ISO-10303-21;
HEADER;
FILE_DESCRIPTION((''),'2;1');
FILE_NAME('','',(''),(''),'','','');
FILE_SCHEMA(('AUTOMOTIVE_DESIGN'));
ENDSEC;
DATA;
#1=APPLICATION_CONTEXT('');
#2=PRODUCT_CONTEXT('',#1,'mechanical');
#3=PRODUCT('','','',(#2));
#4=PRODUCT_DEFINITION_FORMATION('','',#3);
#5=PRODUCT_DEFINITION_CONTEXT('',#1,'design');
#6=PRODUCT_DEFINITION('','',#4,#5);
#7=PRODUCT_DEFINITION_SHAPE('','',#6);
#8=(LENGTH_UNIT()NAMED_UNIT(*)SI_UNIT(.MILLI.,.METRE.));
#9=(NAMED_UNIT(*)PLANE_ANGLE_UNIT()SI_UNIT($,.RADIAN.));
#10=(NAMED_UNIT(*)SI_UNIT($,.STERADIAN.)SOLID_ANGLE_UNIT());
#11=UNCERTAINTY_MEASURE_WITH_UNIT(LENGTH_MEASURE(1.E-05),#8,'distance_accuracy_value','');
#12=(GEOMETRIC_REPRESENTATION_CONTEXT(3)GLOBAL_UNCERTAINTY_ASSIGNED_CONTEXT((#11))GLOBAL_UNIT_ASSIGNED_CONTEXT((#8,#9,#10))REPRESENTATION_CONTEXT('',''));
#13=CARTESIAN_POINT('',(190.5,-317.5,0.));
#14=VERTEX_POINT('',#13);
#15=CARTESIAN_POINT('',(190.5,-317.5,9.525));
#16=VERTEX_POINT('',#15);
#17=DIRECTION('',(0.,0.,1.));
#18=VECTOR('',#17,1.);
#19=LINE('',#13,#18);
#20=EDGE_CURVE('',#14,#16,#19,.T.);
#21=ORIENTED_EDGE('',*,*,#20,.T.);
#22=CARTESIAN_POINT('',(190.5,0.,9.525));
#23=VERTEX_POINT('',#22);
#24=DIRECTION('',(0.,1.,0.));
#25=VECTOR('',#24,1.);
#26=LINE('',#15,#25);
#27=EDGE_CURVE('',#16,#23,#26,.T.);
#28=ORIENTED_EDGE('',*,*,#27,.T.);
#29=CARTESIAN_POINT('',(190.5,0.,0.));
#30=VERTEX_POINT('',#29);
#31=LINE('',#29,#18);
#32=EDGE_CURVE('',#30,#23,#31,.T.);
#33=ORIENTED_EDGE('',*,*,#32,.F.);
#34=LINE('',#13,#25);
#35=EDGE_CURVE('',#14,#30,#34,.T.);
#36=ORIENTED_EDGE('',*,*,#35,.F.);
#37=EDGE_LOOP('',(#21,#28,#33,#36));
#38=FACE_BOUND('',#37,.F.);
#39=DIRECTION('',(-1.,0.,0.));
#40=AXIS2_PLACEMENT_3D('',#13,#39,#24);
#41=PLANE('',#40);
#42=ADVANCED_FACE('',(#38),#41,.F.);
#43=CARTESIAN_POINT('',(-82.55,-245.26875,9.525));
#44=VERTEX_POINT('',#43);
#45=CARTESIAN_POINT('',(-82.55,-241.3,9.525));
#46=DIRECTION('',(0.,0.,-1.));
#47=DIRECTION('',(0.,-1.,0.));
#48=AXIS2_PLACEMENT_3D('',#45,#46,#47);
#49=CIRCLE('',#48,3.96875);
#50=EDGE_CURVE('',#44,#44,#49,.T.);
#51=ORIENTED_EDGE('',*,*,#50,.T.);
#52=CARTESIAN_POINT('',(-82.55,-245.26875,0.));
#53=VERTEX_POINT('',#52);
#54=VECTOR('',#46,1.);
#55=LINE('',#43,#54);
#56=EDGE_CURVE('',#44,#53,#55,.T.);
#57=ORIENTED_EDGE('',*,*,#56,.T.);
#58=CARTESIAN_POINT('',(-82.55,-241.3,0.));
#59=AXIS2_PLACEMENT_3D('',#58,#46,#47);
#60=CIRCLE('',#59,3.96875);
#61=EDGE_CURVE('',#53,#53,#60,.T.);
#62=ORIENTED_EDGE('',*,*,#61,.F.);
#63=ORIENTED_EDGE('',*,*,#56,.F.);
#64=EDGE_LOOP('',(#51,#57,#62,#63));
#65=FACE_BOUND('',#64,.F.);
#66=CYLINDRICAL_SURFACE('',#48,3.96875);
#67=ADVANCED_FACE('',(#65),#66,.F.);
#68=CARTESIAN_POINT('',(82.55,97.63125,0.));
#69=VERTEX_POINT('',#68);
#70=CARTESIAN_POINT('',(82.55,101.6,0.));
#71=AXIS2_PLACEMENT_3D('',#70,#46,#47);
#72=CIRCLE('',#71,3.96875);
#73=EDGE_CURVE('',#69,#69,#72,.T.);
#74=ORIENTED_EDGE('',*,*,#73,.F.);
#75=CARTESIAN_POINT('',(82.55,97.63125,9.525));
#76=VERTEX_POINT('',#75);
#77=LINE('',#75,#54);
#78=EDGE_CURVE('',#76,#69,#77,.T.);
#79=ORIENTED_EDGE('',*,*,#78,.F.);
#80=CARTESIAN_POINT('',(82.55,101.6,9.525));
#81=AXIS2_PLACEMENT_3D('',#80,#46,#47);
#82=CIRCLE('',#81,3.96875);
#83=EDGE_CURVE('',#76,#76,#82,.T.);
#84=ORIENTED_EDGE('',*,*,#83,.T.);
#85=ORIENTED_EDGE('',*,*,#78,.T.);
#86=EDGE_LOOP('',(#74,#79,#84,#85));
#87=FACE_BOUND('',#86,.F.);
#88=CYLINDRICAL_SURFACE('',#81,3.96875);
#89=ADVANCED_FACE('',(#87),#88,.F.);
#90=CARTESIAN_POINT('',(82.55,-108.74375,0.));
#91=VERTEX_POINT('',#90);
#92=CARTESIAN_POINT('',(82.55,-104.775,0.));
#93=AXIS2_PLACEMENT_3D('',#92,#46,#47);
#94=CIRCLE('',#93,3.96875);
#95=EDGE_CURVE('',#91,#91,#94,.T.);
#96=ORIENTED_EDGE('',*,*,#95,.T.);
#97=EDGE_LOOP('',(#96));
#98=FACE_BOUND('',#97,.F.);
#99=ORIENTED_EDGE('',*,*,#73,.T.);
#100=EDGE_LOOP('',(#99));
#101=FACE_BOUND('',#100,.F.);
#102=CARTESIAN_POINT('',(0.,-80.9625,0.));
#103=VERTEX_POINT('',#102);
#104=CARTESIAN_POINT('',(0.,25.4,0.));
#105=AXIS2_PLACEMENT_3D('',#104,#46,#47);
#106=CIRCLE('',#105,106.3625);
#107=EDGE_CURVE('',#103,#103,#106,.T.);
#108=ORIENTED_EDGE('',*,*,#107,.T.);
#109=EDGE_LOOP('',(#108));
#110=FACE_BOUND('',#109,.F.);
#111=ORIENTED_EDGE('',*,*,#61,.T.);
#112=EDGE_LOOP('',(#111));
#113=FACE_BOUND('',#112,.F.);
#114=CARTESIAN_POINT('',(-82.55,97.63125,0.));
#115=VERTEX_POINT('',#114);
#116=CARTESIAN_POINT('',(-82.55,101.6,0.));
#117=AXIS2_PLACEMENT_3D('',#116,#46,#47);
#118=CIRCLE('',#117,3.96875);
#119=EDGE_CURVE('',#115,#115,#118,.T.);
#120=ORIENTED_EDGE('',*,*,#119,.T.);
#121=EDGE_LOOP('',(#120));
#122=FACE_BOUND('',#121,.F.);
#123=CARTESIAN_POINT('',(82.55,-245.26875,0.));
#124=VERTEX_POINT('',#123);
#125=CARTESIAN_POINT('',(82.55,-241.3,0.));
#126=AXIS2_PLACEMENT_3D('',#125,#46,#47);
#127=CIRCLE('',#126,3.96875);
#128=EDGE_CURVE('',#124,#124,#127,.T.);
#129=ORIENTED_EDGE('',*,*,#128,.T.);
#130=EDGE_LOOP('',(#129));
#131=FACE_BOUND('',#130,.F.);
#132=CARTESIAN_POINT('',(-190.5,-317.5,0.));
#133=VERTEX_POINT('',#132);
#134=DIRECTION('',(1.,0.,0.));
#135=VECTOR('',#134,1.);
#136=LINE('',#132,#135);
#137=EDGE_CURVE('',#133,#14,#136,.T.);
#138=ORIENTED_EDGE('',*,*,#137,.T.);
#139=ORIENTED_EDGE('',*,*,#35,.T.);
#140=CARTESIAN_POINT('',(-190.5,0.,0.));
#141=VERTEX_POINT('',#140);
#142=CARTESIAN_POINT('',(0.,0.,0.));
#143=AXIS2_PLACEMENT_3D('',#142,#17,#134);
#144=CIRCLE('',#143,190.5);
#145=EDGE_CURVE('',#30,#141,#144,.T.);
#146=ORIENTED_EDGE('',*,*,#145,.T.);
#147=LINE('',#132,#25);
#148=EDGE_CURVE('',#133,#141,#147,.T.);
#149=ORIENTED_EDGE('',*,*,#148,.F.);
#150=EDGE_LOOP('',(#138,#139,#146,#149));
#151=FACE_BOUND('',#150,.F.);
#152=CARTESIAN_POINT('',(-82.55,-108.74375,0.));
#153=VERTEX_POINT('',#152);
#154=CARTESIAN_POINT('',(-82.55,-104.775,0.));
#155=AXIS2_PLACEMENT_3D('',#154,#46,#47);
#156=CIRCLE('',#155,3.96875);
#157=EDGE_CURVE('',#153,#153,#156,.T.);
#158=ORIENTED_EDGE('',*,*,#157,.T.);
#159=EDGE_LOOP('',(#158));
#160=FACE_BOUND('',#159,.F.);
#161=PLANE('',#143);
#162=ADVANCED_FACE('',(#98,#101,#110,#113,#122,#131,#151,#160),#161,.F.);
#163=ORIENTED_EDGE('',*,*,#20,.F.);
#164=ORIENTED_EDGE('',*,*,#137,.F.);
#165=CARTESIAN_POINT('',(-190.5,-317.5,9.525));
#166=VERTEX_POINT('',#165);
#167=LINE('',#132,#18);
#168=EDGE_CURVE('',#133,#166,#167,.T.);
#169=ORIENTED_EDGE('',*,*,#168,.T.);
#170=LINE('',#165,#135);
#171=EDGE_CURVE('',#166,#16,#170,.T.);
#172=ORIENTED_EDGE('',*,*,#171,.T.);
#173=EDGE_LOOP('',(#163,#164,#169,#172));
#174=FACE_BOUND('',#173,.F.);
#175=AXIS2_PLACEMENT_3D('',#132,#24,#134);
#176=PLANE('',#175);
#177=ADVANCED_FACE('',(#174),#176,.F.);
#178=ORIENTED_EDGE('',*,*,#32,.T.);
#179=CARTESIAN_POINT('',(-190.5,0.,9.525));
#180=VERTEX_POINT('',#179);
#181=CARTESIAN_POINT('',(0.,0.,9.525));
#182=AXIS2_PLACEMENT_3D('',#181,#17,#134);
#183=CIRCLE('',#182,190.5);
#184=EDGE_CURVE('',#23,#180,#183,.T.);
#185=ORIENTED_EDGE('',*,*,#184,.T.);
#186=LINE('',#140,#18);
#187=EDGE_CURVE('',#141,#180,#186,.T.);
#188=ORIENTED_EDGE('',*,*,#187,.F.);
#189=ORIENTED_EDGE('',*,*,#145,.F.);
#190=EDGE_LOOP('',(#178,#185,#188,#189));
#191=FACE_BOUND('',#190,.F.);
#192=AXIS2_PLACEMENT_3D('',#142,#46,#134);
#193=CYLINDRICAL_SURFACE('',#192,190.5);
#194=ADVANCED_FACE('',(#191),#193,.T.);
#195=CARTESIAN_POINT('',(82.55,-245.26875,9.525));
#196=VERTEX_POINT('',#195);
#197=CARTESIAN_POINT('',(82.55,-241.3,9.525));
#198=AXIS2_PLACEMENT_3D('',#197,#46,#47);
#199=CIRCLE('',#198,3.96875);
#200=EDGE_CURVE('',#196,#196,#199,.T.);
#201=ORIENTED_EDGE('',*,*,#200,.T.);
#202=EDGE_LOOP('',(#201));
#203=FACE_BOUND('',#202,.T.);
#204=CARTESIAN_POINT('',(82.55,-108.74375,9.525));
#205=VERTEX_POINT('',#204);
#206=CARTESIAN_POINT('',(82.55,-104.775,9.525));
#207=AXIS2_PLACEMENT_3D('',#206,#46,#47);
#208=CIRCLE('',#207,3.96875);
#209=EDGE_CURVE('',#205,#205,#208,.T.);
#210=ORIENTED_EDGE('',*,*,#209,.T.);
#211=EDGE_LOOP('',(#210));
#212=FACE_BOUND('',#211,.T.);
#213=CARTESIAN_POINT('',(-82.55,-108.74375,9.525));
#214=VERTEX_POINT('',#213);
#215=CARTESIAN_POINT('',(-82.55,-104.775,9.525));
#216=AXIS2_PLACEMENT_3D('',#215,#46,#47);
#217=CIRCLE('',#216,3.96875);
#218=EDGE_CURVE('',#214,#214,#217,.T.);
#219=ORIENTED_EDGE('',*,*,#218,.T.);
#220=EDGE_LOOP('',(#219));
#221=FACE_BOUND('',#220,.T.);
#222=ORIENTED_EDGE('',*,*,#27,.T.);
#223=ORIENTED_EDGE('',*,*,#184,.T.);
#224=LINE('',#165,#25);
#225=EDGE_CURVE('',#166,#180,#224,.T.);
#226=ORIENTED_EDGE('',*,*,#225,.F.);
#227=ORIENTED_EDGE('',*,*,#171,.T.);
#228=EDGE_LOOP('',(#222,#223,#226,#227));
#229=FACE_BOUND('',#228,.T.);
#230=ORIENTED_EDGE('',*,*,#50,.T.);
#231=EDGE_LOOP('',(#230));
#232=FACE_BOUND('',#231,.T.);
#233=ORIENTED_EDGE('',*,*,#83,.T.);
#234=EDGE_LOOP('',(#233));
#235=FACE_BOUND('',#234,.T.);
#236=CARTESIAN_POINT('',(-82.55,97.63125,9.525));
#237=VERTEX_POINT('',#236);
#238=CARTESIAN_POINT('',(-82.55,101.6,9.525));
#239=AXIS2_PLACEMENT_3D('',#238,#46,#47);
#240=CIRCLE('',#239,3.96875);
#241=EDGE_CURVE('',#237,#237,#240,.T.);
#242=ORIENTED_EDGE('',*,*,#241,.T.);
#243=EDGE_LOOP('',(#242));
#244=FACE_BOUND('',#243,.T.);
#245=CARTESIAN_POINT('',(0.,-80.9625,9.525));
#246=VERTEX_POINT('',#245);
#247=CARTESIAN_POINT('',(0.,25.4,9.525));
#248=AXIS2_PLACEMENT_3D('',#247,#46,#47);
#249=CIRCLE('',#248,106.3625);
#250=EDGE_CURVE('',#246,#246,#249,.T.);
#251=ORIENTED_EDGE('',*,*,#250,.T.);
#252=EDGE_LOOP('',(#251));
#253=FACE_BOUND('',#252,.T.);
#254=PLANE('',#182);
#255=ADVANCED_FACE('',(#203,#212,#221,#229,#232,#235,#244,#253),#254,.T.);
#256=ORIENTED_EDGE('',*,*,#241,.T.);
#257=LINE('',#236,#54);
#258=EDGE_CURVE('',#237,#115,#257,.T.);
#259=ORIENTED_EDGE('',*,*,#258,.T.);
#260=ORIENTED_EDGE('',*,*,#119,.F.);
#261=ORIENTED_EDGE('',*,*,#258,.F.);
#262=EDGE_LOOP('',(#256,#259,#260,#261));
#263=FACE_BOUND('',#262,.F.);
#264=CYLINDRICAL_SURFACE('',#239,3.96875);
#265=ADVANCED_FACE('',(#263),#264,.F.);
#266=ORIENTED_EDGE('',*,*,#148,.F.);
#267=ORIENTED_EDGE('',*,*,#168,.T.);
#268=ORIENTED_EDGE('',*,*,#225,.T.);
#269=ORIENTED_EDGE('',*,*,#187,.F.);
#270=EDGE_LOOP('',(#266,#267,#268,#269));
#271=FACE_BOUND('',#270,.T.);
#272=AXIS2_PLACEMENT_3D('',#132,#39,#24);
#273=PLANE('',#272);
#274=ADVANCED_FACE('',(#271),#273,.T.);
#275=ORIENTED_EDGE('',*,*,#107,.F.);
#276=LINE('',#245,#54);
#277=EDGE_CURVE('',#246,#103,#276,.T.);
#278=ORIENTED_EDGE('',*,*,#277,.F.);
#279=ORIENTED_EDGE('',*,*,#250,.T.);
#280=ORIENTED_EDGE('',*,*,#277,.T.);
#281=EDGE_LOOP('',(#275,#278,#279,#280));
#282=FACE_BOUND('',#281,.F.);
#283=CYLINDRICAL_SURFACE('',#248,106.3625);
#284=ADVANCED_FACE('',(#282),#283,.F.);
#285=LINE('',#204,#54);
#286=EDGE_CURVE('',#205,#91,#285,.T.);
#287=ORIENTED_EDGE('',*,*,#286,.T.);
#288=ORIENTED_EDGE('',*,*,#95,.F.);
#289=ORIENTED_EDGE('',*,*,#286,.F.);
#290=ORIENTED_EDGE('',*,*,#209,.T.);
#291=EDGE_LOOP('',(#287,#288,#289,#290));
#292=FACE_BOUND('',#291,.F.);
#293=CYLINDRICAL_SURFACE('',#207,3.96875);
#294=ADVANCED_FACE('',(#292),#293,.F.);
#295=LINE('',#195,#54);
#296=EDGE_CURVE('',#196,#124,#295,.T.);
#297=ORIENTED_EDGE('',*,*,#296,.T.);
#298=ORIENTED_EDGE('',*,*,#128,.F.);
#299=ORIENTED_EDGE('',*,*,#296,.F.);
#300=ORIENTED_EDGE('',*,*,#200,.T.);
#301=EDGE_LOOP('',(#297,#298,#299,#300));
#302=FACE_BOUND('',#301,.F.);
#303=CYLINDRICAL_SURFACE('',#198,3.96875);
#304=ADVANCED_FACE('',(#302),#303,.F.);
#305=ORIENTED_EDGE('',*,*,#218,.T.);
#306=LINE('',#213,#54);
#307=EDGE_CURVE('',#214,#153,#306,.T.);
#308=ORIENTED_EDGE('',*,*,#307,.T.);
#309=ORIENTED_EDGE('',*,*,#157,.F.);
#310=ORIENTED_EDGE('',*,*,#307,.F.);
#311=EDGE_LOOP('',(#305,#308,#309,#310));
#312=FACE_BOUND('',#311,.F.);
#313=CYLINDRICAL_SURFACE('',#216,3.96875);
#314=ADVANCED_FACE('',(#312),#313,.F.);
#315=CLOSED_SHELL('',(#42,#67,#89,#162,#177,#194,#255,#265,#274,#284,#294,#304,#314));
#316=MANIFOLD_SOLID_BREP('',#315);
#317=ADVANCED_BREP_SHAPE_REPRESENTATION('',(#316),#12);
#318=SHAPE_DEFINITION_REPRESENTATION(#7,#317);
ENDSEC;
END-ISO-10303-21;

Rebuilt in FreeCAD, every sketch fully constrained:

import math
import FreeCAD as App
import Part
import Sketcher
Q = App.Units.Quantity

doc = App.newDocument("Part")
params = doc.addObject("Spreadsheet::Sheet", "Params")
for row, (alias, value) in enumerate([
    ("sketch1_radius", "7.5 in"),
    ("sketch1_height", "12.5 in"),
    ("pad1_length", "0.375 in"),
    ("sketch2_diameter", "0.3125 in"),
    ("hole_diameter", "0.3125 in"),
    ("hole_depth", "1 in"),
    ("sketch3_diameter", "0.3125 in"),
    ("hole2_diameter", "0.3125 in"),
    ("hole2_depth", "1 in"),
    ("sketch4_diameter", "0.3125 in"),
    ("hole3_diameter", "0.3125 in"),
    ("hole3_depth", "1 in"),
    ("sketch5_diameter", "0.3125 in"),
    ("hole4_diameter", "0.3125 in"),
    ("hole4_depth", "1 in"),
    ("sketch6_diameter", "0.3125 in"),
    ("hole5_diameter", "0.3125 in"),
    ("hole5_depth", "1 in"),
    ("sketch7_diameter", "0.3125 in"),
    ("hole6_diameter", "0.3125 in"),
    ("hole6_depth", "1 in"),
    ("sketch8_diameter", "8.375 in"),
    ("hole7_diameter", "8.375 in"),
    ("hole7_depth", "1 in"),
], start=1):
    params.set(f"A{row}", alias)
    params.set(f"B{row}", "=" + value)
    params.setAlias(f"B{row}", alias)

body = doc.addObject("PartDesign::Body", "Body")

sketch1 = body.newObject("Sketcher::SketchObject", "Sketch")
sketch1.AttachmentSupport = (doc.getObject("XY_Plane"), [""])
sketch1.MapMode = "FlatFace"
sketch1.addGeometry(Part.LineSegment(App.Vector(-190, 0, 0), App.Vector(-190, -318, 0)), False)
sketch1.addGeometry(Part.LineSegment(App.Vector(-190, -318, 0), App.Vector(190, -318, 0)), False)
sketch1.addGeometry(Part.LineSegment(App.Vector(190, -318, 0), App.Vector(190, 0, 0)), False)
sketch1.addGeometry(Part.ArcOfCircle(Part.Circle(App.Vector(0, 0, 0), App.Vector(0, 0, 1), 190), math.radians(0), math.radians(180)), False)
sketch1.addConstraint(Sketcher.Constraint("Coincident", 0, 2, 1, 1))
sketch1.addConstraint(Sketcher.Constraint("Coincident", 1, 2, 2, 1))
sketch1.addConstraint(Sketcher.Constraint("Tangent", 2, 2, 3, 1))
sketch1.addConstraint(Sketcher.Constraint("Tangent", 3, 2, 0, 1))
sketch1.addConstraint(Sketcher.Constraint("Vertical", 0))
sketch1.addConstraint(Sketcher.Constraint("Horizontal", 1))
sketch1.addConstraint(Sketcher.Constraint("Vertical", 2))
sketch1.addConstraint(Sketcher.Constraint("Coincident", 3, 3, -1, 1))
sketch1.addConstraint(Sketcher.Constraint("Radius", 3, Q("7.5 in")))
sketch1.addConstraint(Sketcher.Constraint("DistanceY", 0, 2, 0, 1, Q("12.5 in")))
sketch1.setExpression("Constraints[8]", "Params.sketch1_radius")
sketch1.setExpression("Constraints[9]", "Params.sketch1_height")
pad1 = body.newObject("PartDesign::Pad", "Pad")
pad1.Profile = sketch1
pad1.setExpression("Length", "Params.pad1_length")

sketch2 = body.newObject("Sketcher::SketchObject", "Sketch001")
sketch2.AttachmentSupport = (doc.getObject("XY_Plane"), [""])
sketch2.MapMode = "FlatFace"
sketch2.AttachmentOffset = App.Placement(App.Vector(0, 0, 0.375 * 25.4), App.Rotation())
sketch2.addGeometry(Part.Circle(App.Vector(82.5, -241.3, 0), App.Vector(0, 0, 1), 4), False)
sketch2.addConstraint(Sketcher.Constraint("Diameter", 0, Q("0.3125 in")))
sketch2.addConstraint(Sketcher.Constraint("DistanceY", 0, 3, -1, 1, Q("9.5 in")))
sketch2.addConstraint(Sketcher.Constraint("DistanceX", -1, 1, 0, 3, Q("3.25 in")))
sketch2.setExpression("Constraints[0]", "Params.sketch2_diameter")
doc.recompute()
hole = body.newObject("PartDesign::Hole", "Hole")
hole.Profile = sketch2
hole.ThreadType = "None"
hole.setExpression("Diameter", "Params.hole_diameter")
hole.DepthType = "Dimension"
hole.setExpression("Depth", "Params.hole_depth")
hole.DrillPoint = "Angled"
hole.DrillPointAngle = 118

sketch3 = body.newObject("Sketcher::SketchObject", "Sketch002")
sketch3.AttachmentSupport = (doc.getObject("XY_Plane"), [""])
sketch3.MapMode = "FlatFace"
sketch3.AttachmentOffset = App.Placement(App.Vector(0, 0, 0.375 * 25.4), App.Rotation())
sketch3.addGeometry(Part.Circle(App.Vector(-82.5, -241.3, 0), App.Vector(0, 0, 1), 4), False)
sketch3.addConstraint(Sketcher.Constraint("Diameter", 0, Q("0.3125 in")))
sketch3.addConstraint(Sketcher.Constraint("DistanceY", 0, 3, -1, 1, Q("9.5 in")))
sketch3.addConstraint(Sketcher.Constraint("DistanceX", 0, 3, -1, 1, Q("3.25 in")))
sketch3.setExpression("Constraints[0]", "Params.sketch3_diameter")
doc.recompute()
hole2 = body.newObject("PartDesign::Hole", "Hole001")
hole2.Profile = sketch3
hole2.ThreadType = "None"
hole2.setExpression("Diameter", "Params.hole2_diameter")
hole2.DepthType = "Dimension"
hole2.setExpression("Depth", "Params.hole2_depth")
hole2.DrillPoint = "Angled"
hole2.DrillPointAngle = 118

sketch4 = body.newObject("Sketcher::SketchObject", "Sketch003")
sketch4.AttachmentSupport = (doc.getObject("XY_Plane"), [""])
sketch4.MapMode = "FlatFace"
sketch4.AttachmentOffset = App.Placement(App.Vector(0, 0, 0.375 * 25.4), App.Rotation())
sketch4.addGeometry(Part.Circle(App.Vector(82.5, -104.8, 0), App.Vector(0, 0, 1), 4), False)
sketch4.addConstraint(Sketcher.Constraint("Diameter", 0, Q("0.3125 in")))
sketch4.addConstraint(Sketcher.Constraint("DistanceX", -1, 1, 0, 3, Q("3.25 in")))
sketch4.addConstraint(Sketcher.Constraint("DistanceY", 0, 3, -1, 1, Q("4.125 in")))
sketch4.setExpression("Constraints[0]", "Params.sketch4_diameter")
doc.recompute()
hole3 = body.newObject("PartDesign::Hole", "Hole002")
hole3.Profile = sketch4
hole3.ThreadType = "None"
hole3.setExpression("Diameter", "Params.hole3_diameter")
hole3.DepthType = "Dimension"
hole3.setExpression("Depth", "Params.hole3_depth")
hole3.DrillPoint = "Angled"
hole3.DrillPointAngle = 118

sketch5 = body.newObject("Sketcher::SketchObject", "Sketch004")
sketch5.AttachmentSupport = (doc.getObject("XY_Plane"), [""])
sketch5.MapMode = "FlatFace"
sketch5.AttachmentOffset = App.Placement(App.Vector(0, 0, 0.375 * 25.4), App.Rotation())
sketch5.addGeometry(Part.Circle(App.Vector(-82.5, -104.8, 0), App.Vector(0, 0, 1), 4), False)
sketch5.addConstraint(Sketcher.Constraint("Diameter", 0, Q("0.3125 in")))
sketch5.addConstraint(Sketcher.Constraint("DistanceX", 0, 3, -1, 1, Q("3.25 in")))
sketch5.addConstraint(Sketcher.Constraint("DistanceY", 0, 3, -1, 1, Q("4.125 in")))
sketch5.setExpression("Constraints[0]", "Params.sketch5_diameter")
doc.recompute()
hole4 = body.newObject("PartDesign::Hole", "Hole003")
hole4.Profile = sketch5
hole4.ThreadType = "None"
hole4.setExpression("Diameter", "Params.hole4_diameter")
hole4.DepthType = "Dimension"
hole4.setExpression("Depth", "Params.hole4_depth")
hole4.DrillPoint = "Angled"
hole4.DrillPointAngle = 118

sketch6 = body.newObject("Sketcher::SketchObject", "Sketch005")
sketch6.AttachmentSupport = (doc.getObject("XY_Plane"), [""])
sketch6.MapMode = "FlatFace"
sketch6.AttachmentOffset = App.Placement(App.Vector(0, 0, 0.375 * 25.4), App.Rotation())
sketch6.addGeometry(Part.Circle(App.Vector(-82.5, 101.6, 0), App.Vector(0, 0, 1), 4), False)
sketch6.addConstraint(Sketcher.Constraint("Diameter", 0, Q("0.3125 in")))
sketch6.addConstraint(Sketcher.Constraint("DistanceY", -1, 1, 0, 3, Q("4 in")))
sketch6.addConstraint(Sketcher.Constraint("DistanceX", 0, 3, -1, 1, Q("3.25 in")))
sketch6.setExpression("Constraints[0]", "Params.sketch6_diameter")
doc.recompute()
hole5 = body.newObject("PartDesign::Hole", "Hole004")
hole5.Profile = sketch6
hole5.ThreadType = "None"
hole5.setExpression("Diameter", "Params.hole5_diameter")
hole5.DepthType = "Dimension"
hole5.setExpression("Depth", "Params.hole5_depth")
hole5.DrillPoint = "Angled"
hole5.DrillPointAngle = 118

sketch7 = body.newObject("Sketcher::SketchObject", "Sketch006")
sketch7.AttachmentSupport = (doc.getObject("XY_Plane"), [""])
sketch7.MapMode = "FlatFace"
sketch7.AttachmentOffset = App.Placement(App.Vector(0, 0, 0.375 * 25.4), App.Rotation())
sketch7.addGeometry(Part.Circle(App.Vector(82.5, 101.6, 0), App.Vector(0, 0, 1), 4), False)
sketch7.addConstraint(Sketcher.Constraint("Diameter", 0, Q("0.3125 in")))
sketch7.addConstraint(Sketcher.Constraint("DistanceY", -1, 1, 0, 3, Q("4 in")))
sketch7.addConstraint(Sketcher.Constraint("DistanceX", -1, 1, 0, 3, Q("3.25 in")))
sketch7.setExpression("Constraints[0]", "Params.sketch7_diameter")
doc.recompute()
hole6 = body.newObject("PartDesign::Hole", "Hole005")
hole6.Profile = sketch7
hole6.ThreadType = "None"
hole6.setExpression("Diameter", "Params.hole6_diameter")
hole6.DepthType = "Dimension"
hole6.setExpression("Depth", "Params.hole6_depth")
hole6.DrillPoint = "Angled"
hole6.DrillPointAngle = 118

sketch8 = body.newObject("Sketcher::SketchObject", "Sketch007")
sketch8.AttachmentSupport = (doc.getObject("XY_Plane"), [""])
sketch8.MapMode = "FlatFace"
sketch8.AttachmentOffset = App.Placement(App.Vector(0, 0, 0.375 * 25.4), App.Rotation())
sketch8.addGeometry(Part.Circle(App.Vector(0, 25, 0), App.Vector(0, 0, 1), 106), False)
sketch8.addConstraint(Sketcher.Constraint("PointOnObject", 0, 3, -2))
sketch8.addConstraint(Sketcher.Constraint("Diameter", 0, Q("8.375 in")))
sketch8.addConstraint(Sketcher.Constraint("DistanceY", -1, 1, 0, 3, Q("1 in")))
sketch8.setExpression("Constraints[1]", "Params.sketch8_diameter")
doc.recompute()
hole7 = body.newObject("PartDesign::Hole", "Hole006")
hole7.Profile = sketch8
hole7.ThreadType = "None"
hole7.setExpression("Diameter", "Params.hole7_diameter")
hole7.DepthType = "Dimension"
hole7.setExpression("Depth", "Params.hole7_depth")
hole7.DrillPoint = "Angled"
hole7.DrillPointAngle = 118

doc.recompute()
